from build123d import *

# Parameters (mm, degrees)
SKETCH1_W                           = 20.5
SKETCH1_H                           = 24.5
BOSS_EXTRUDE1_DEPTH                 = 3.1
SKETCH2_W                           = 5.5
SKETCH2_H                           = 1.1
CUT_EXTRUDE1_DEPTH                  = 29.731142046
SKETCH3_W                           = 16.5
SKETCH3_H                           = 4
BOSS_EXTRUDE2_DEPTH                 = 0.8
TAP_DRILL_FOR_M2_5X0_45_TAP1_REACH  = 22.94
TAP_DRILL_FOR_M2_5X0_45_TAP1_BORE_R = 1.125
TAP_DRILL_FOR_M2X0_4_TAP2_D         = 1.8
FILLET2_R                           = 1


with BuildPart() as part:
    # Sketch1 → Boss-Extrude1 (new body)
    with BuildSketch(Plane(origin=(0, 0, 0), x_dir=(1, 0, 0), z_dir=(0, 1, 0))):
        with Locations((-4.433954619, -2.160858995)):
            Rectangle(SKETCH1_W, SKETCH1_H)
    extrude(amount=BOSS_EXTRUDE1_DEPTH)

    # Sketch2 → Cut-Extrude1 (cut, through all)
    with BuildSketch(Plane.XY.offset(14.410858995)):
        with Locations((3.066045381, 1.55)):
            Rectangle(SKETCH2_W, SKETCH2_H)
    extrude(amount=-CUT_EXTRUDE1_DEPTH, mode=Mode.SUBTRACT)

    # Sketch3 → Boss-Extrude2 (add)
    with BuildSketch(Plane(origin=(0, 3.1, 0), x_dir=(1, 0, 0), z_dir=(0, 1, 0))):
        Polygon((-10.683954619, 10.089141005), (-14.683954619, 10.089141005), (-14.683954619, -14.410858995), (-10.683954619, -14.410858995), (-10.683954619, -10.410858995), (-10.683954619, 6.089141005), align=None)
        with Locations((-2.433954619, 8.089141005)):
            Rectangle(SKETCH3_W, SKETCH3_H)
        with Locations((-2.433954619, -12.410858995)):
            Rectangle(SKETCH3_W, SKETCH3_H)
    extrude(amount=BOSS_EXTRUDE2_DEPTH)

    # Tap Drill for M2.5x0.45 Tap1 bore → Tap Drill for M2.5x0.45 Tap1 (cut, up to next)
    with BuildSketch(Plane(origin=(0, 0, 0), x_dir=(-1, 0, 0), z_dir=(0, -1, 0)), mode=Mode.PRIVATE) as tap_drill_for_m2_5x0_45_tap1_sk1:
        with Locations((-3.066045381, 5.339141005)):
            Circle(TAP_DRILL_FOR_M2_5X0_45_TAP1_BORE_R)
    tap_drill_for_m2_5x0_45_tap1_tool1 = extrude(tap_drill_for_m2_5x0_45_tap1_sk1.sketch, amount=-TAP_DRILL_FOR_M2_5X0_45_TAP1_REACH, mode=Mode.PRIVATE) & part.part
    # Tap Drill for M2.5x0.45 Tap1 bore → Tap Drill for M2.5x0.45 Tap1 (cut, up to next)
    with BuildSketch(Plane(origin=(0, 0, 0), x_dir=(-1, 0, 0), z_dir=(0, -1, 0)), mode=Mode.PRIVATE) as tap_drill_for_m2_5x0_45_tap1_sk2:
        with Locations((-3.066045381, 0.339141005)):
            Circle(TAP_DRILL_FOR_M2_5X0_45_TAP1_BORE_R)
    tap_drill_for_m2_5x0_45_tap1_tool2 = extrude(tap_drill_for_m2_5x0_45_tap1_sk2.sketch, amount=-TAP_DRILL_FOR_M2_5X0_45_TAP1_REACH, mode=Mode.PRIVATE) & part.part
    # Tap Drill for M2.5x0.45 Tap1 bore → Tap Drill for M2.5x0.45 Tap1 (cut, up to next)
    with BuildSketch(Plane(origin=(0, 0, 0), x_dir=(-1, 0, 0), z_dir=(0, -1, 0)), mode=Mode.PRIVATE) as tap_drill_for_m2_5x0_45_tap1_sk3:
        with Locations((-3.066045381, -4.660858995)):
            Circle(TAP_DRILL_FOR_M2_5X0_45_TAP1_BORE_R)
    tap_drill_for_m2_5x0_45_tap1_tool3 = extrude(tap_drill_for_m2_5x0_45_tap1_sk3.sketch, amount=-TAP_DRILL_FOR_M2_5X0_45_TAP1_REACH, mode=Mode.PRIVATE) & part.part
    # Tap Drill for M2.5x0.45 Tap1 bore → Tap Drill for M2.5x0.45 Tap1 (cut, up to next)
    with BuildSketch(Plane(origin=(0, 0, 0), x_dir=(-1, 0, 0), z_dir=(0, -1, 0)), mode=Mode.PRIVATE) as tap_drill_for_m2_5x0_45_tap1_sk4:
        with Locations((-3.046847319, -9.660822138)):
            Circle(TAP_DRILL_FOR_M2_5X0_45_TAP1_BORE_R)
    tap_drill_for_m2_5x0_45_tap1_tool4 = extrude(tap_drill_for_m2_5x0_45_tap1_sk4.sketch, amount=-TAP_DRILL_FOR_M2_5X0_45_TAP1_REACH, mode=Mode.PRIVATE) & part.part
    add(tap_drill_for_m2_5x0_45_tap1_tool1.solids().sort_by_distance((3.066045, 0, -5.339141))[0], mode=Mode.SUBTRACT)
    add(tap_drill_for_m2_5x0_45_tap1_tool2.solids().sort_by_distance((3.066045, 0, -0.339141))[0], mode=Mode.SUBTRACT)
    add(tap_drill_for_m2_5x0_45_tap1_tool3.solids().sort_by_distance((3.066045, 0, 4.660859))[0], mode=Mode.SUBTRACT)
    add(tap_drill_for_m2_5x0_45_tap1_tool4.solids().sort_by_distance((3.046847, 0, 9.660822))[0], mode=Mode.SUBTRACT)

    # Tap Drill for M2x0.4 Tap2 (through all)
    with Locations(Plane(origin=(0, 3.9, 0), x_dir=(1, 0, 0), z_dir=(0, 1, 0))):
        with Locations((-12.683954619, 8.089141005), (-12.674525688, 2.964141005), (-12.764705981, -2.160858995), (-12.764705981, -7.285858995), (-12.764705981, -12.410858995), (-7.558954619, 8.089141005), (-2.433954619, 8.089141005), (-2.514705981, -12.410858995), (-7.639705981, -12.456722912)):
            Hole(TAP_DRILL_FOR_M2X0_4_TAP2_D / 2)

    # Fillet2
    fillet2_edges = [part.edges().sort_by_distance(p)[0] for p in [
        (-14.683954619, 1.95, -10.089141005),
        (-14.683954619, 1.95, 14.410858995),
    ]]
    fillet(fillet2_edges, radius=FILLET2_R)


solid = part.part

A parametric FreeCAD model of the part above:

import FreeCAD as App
import Part
import Sketcher
from FreeCAD import Vector


def edges_at(feature, points):
    """Names of the edges that pass closest to the given points."""
    edges = feature.Shape.Edges
    near = lambda p: min(range(len(edges)), key=lambda i: edges[i].distToShape(Part.Vertex(*p))[0])
    return sorted({f"Edge{near(p) + 1}" for p in points})

doc = App.newDocument("Part")
body = doc.addObject("PartDesign::Body", "Body")

sketch1 = body.newObject("Sketcher::SketchObject", "Sketch")
sketch1.AttachmentSupport = (doc.getObject("XZ_Plane"), [""])
sketch1.MapMode = "FlatFace"
sketch1.addGeometry(Part.LineSegment(Vector(-15, -10, 0), Vector(-15, 14, 0)), False)
sketch1.addGeometry(Part.LineSegment(Vector(-15, 14, 0), Vector(6, 14, 0)), False)
sketch1.addGeometry(Part.LineSegment(Vector(6, 14, 0), Vector(6, -10, 0)), False)
sketch1.addGeometry(Part.LineSegment(Vector(6, -10, 0), Vector(-15, -10, 0)), False)
sketch1.addConstraint(Sketcher.Constraint("Coincident", 0, 2, 1, 1))
sketch1.addConstraint(Sketcher.Constraint("Coincident", 1, 2, 2, 1))
sketch1.addConstraint(Sketcher.Constraint("Coincident", 2, 2, 3, 1))
sketch1.addConstraint(Sketcher.Constraint("Coincident", 3, 2, 0, 1))
sketch1.addConstraint(Sketcher.Constraint("Vertical", 0))
sketch1.addConstraint(Sketcher.Constraint("Horizontal", 1))
sketch1.addConstraint(Sketcher.Constraint("Vertical", 2))
sketch1.addConstraint(Sketcher.Constraint("Horizontal", 3))
sketch1.addConstraint(Sketcher.Constraint("DistanceX", 1, 1, 1, 2, 20.5))
sketch1.addConstraint(Sketcher.Constraint("DistanceY", 0, 1, 0, 2, 24.5))
sketch1.addConstraint(Sketcher.Constraint("DistanceY", -1, 1, 0, 2, 14.410859))
sketch1.addConstraint(Sketcher.Constraint("DistanceX", 0, 2, -1, 1, 14.683955))
pad1 = body.newObject("PartDesign::Pad", "Pad")
pad1.Profile = sketch1
pad1.Length = 3.1
pad1.Reversed = True

sketch2 = body.newObject("Sketcher::SketchObject", "Sketch001")
sketch2.AttachmentSupport = (doc.getObject("XY_Plane"), [""])
sketch2.MapMode = "FlatFace"
sketch2.AttachmentOffset = App.Placement(Vector(0, 0, 14.410859), App.Rotation())
sketch2.addGeometry(Part.LineSegment(Vector(0.3, 2.1, 0), Vector(0.3, 1, 0)), False)
sketch2.addGeometry(Part.LineSegment(Vector(0.3, 1, 0), Vector(5.8, 1, 0)), False)
sketch2.addGeometry(Part.LineSegment(Vector(5.8, 1, 0), Vector(5.8, 2.1, 0)), False)
sketch2.addGeometry(Part.LineSegment(Vector(5.8, 2.1, 0), Vector(0.3, 2.1, 0)), False)
sketch2.addConstraint(Sketcher.Constraint("Coincident", 0, 2, 1, 1))
sketch2.addConstraint(Sketcher.Constraint("Coincident", 1, 2, 2, 1))
sketch2.addConstraint(Sketcher.Constraint("Coincident", 2, 2, 3, 1))
sketch2.addConstraint(Sketcher.Constraint("Coincident", 3, 2, 0, 1))
sketch2.addConstraint(Sketcher.Constraint("Vertical", 0))
sketch2.addConstraint(Sketcher.Constraint("Horizontal", 1))
sketch2.addConstraint(Sketcher.Constraint("Vertical", 2))
sketch2.addConstraint(Sketcher.Constraint("Horizontal", 3))
sketch2.addConstraint(Sketcher.Constraint("DistanceX", 1, 1, 1, 2, 5.5))
sketch2.addConstraint(Sketcher.Constraint("DistanceY", 0, 2, 0, 1, 1.1))
sketch2.addConstraint(Sketcher.Constraint("DistanceY", -1, 1, 0, 2, 1.0))
sketch2.addConstraint(Sketcher.Constraint("DistanceX", -1, 1, 0, 2, 0.316045))
pocket1 = body.newObject("PartDesign::Pocket", "Pocket")
pocket1.Profile = sketch2
pocket1.Type = "ThroughAll"

sketch3 = body.newObject("Sketcher::SketchObject", "Sketch002")
sketch3.AttachmentSupport = (doc.getObject("XZ_Plane"), [""])
sketch3.MapMode = "FlatFace"
sketch3.AttachmentOffset = App.Placement(Vector(0, 0, -3.1), App.Rotation())
sketch3.addGeometry(Part.LineSegment(Vector(-14.7, -10.1, 0), Vector(-14.7, 14.4, 0)), False)
sketch3.addGeometry(Part.LineSegment(Vector(-14.7, 14.4, 0), Vector(5.8, 14.4, 0)), False)
sketch3.addGeometry(Part.LineSegment(Vector(5.8, 14.4, 0), Vector(5.8, 10.4, 0)), False)
sketch3.addGeometry(Part.LineSegment(Vector(5.8, 10.4, 0), Vector(-10.7, 10.4, 0)), False)
sketch3.addGeometry(Part.LineSegment(Vector(-10.7, 10.4, 0), Vector(-10.7, -6.1, 0)), False)
sketch3.addGeometry(Part.LineSegment(Vector(-10.7, -6.1, 0), Vector(5.8, -6.1, 0)), False)
sketch3.addGeometry(Part.LineSegment(Vector(5.8, -6.1, 0), Vector(5.8, -10.1, 0)), False)
sketch3.addGeometry(Part.LineSegment(Vector(5.8, -10.1, 0), Vector(-14.7, -10.1, 0)), False)
sketch3.addConstraint(Sketcher.Constraint("Coincident", 0, 2, 1, 1))
sketch3.addConstraint(Sketcher.Constraint("Coincident", 1, 2, 2, 1))
sketch3.addConstraint(Sketcher.Constraint("Coincident", 2, 2, 3, 1))
sketch3.addConstraint(Sketcher.Constraint("Coincident", 3, 2, 4, 1))
sketch3.addConstraint(Sketcher.Constraint("Coincident", 4, 2, 5, 1))
sketch3.addConstraint(Sketcher.Constraint("Coincident", 5, 2, 6, 1))
sketch3.addConstraint(Sketcher.Constraint("Coincident", 6, 2, 7, 1))
sketch3.addConstraint(Sketcher.Constraint("Coincident", 7, 2, 0, 1))
sketch3.addConstraint(Sketcher.Constraint("Vertical", 0))
sketch3.addConstraint(Sketcher.Constraint("Horizontal", 1))
sketch3.addConstraint(Sketcher.Constraint("Vertical", 2))
sketch3.addConstraint(Sketcher.Constraint("Horizontal", 3))
sketch3.addConstraint(Sketcher.Constraint("Vertical", 4))
sketch3.addConstraint(Sketcher.Constraint("Horizontal", 5))
sketch3.addConstraint(Sketcher.Constraint("Vertical", 6))
sketch3.addConstraint(Sketcher.Constraint("Horizontal", 7))
sketch3.addConstraint(Sketcher.Constraint("Vertical", 2, 2, 5, 2))
sketch3.addConstraint(Sketcher.Constraint("Equal", 5, 4))
sketch3.addConstraint(Sketcher.Constraint("Equal", 2, 6))
sketch3.addConstraint(Sketcher.Constraint("DistanceY", 2, 2, 2, 1, 4.0))
sketch3.addConstraint(Sketcher.Constraint("DistanceX", 1, 1, 1, 2, 20.5))
sketch3.addConstraint(Sketcher.Constraint("DistanceX", 3, 2, 3, 1, 16.5))
sketch3.addConstraint(Sketcher.Constraint("DistanceY", -1, 1, 0, 2, 14.410859))
sketch3.addConstraint(Sketcher.Constraint("DistanceX", 0, 2, -1, 1, 14.683955))
pad2 = body.newObject("PartDesign::Pad", "Pad001")
pad2.Profile = sketch3
pad2.Length = 0.8
pad2.Reversed = True

sketch4 = body.newObject("Sketcher::SketchObject", "Sketch003")
sketch4.AttachmentSupport = (doc.getObject("XZ_Plane"), [""])
sketch4.MapMode = "FlatFace"
sketch4.addGeometry(Part.Circle(Vector(3.1, -5.3, 0), Vector(0, 0, 1), 1.1), False)
sketch4.addConstraint(Sketcher.Constraint("Diameter", 0, 2.25))
sketch4.addConstraint(Sketcher.Constraint("DistanceY", 0, 3, -1, 1, 5.339141))
sketch4.addConstraint(Sketcher.Constraint("DistanceX", -1, 1, 0, 3, 3.066045))
pocket2 = body.newObject("PartDesign::Pocket", "Pocket001")
pocket2.Profile = sketch4
pocket2.Type = "UpToFirst"

sketch5 = body.newObject("Sketcher::SketchObject", "Sketch004")
sketch5.AttachmentSupport = (doc.getObject("XZ_Plane"), [""])
sketch5.MapMode = "FlatFace"
sketch5.addGeometry(Part.Circle(Vector(3.1, -0.3, 0), Vector(0, 0, 1), 1.1), False)
sketch5.addConstraint(Sketcher.Constraint("Diameter", 0, 2.25))
sketch5.addConstraint(Sketcher.Constraint("DistanceY", 0, 3, -1, 1, 0.339141))
sketch5.addConstraint(Sketcher.Constraint("DistanceX", -1, 1, 0, 3, 3.066045))
pocket3 = body.newObject("PartDesign::Pocket", "Pocket002")
pocket3.Profile = sketch5
pocket3.Type = "UpToFirst"

sketch6 = body.newObject("Sketcher::SketchObject", "Sketch005")
sketch6.AttachmentSupport = (doc.getObject("XZ_Plane"), [""])
sketch6.MapMode = "FlatFace"
sketch6.addGeometry(Part.Circle(Vector(3.1, 4.7, 0), Vector(0, 0, 1), 1.1), False)
sketch6.addConstraint(Sketcher.Constraint("Diameter", 0, 2.25))
sketch6.addConstraint(Sketcher.Constraint("DistanceY", -1, 1, 0, 3, 4.660859))
sketch6.addConstraint(Sketcher.Constraint("DistanceX", -1, 1, 0, 3, 3.066045))
pocket4 = body.newObject("PartDesign::Pocket", "Pocket003")
pocket4.Profile = sketch6
pocket4.Type = "UpToFirst"

sketch7 = body.newObject("Sketcher::SketchObject", "Sketch006")
sketch7.AttachmentSupport = (doc.getObject("XZ_Plane"), [""])
sketch7.MapMode = "FlatFace"
sketch7.addGeometry(Part.Circle(Vector(3, 9.7, 0), Vector(0, 0, 1), 1.1), False)
sketch7.addConstraint(Sketcher.Constraint("Diameter", 0, 2.25))
sketch7.addConstraint(Sketcher.Constraint("DistanceX", -1, 1, 0, 3, 3.046847))
sketch7.addConstraint(Sketcher.Constraint("DistanceY", -1, 1, 0, 3, 9.660822))
pocket5 = body.newObject("PartDesign::Pocket", "Pocket004")
pocket5.Profile = sketch7
pocket5.Type = "UpToFirst"

sketch8 = body.newObject("Sketcher::SketchObject", "Sketch007")
sketch8.AttachmentSupport = (doc.getObject("XZ_Plane"), [""])
sketch8.MapMode = "FlatFace"
sketch8.AttachmentOffset = App.Placement(Vector(0, 0, -3.9), App.Rotation())
sketch8.addGeometry(Part.Circle(Vector(-12.7, -8.1, 0), Vector(0, 0, 1), 0.9), False)
sketch8.addGeometry(Part.Circle(Vector(-12.7, -3, 0), Vector(0, 0, 1), 0.9), False)
sketch8.addGeometry(Part.Circle(Vector(-12.8, 2.2, 0), Vector(0, 0, 1), 0.9), False)
sketch8.addGeometry(Part.Circle(Vector(-12.8, 7.3, 0), Vector(0, 0, 1), 0.9), False)
sketch8.addGeometry(Part.Circle(Vector(-12.8, 12.4, 0), Vector(0, 0, 1), 0.9), False)
sketch8.addGeometry(Part.Circle(Vector(-7.6, -8.1, 0), Vector(0, 0, 1), 0.9), False)
sketch8.addGeometry(Part.Circle(Vector(-2.4, -8.1, 0), Vector(0, 0, 1), 0.9), False)
sketch8.addGeometry(Part.Circle(Vector(-2.5, 12.4, 0), Vector(0, 0, 1), 0.9), False)
sketch8.addGeometry(Part.Circle(Vector(-7.6, 12.5, 0), Vector(0, 0, 1), 0.9), False)
sketch8.addConstraint(Sketcher.Constraint("Equal", 0, 1))
sketch8.addConstraint(Sketcher.Constraint("Equal", 1, 2))
sketch8.addConstraint(Sketcher.Constraint("Equal", 2, 3))
sketch8.addConstraint(Sketcher.Constraint("Equal", 3, 4))
sketch8.addConstraint(Sketcher.Constraint("Equal", 4, 5))
sketch8.addConstraint(Sketcher.Constraint("Equal", 5, 6))
sketch8.addConstraint(Sketcher.Constraint("Equal", 6, 7))
sketch8.addConstraint(Sketcher.Constraint("Equal", 7, 8))
sketch8.addConstraint(Sketcher.Constraint("Horizontal", 0, 3, 5, 3))
sketch8.addConstraint(Sketcher.Constraint("Horizontal", 5, 3, 6, 3))
sketch8.addConstraint(Sketcher.Constraint("Horizontal", 4, 3, 7, 3))
sketch8.addConstraint(Sketcher.Constraint("Vertical", 2, 3, 3, 3))
sketch8.addConstraint(Sketcher.Constraint("Vertical", 3, 3, 4, 3))
sketch8.addConstraint(Sketcher.Constraint("Diameter", 0, 1.8))
sketch8.addConstraint(Sketcher.Constraint("DistanceY", 0, 3, 4, 3, 20.5))
sketch8.addConstraint(Sketcher.Constraint("DistanceY", 0, 3, 2, 3, 10.25))
sketch8.addConstraint(Sketcher.Constraint("DistanceY", 1, 3, 3, 3, 10.25))
sketch8.addConstraint(Sketcher.Constraint("DistanceX", 0, 3, 6, 3, 10.25))
sketch8.addConstraint(Sketcher.Constraint("DistanceX", 4, 3, 7, 3, 10.25))
sketch8.addConstraint(Sketcher.Constraint("DistanceY", 0, 3, 1, 3, 5.125))
sketch8.addConstraint(Sketcher.Constraint("DistanceX", 0, 3, 5, 3, 5.125))
sketch8.addConstraint(Sketcher.Constraint("DistanceX", 8, 3, 7, 3, 5.125))
sketch8.addConstraint(Sketcher.Constraint("DistanceY", 0, 3, -1, 1, 8.089141))
sketch8.addConstraint(Sketcher.Constraint("DistanceX", 0, 3, 1, 3, 0.009429))
sketch8.addConstraint(Sketcher.Constraint("DistanceX", 2, 3, 1, 3, 0.09018))
sketch8.addConstraint(Sketcher.Constraint("DistanceX", 0, 3, -1, 1, 12.683955))
sketch8.addConstraint(Sketcher.Constraint("DistanceY", -1, 1, 8, 3, 12.456723))
doc.recompute()
hole = body.newObject("PartDesign::Hole", "Hole")
hole.Profile = sketch8
hole.ThreadType = "None"
hole.Diameter = 1.8
hole.DepthType = "ThroughAll"
hole.Reversed = True
doc.recompute()

fillet = body.newObject("PartDesign::Fillet", "Fillet")
fillet.Base = (hole, edges_at(hole, [(-14.684, 1.95, -10.089), (-14.684, 1.95, 14.411)]))
fillet.Radius = 1

doc.recompute()
